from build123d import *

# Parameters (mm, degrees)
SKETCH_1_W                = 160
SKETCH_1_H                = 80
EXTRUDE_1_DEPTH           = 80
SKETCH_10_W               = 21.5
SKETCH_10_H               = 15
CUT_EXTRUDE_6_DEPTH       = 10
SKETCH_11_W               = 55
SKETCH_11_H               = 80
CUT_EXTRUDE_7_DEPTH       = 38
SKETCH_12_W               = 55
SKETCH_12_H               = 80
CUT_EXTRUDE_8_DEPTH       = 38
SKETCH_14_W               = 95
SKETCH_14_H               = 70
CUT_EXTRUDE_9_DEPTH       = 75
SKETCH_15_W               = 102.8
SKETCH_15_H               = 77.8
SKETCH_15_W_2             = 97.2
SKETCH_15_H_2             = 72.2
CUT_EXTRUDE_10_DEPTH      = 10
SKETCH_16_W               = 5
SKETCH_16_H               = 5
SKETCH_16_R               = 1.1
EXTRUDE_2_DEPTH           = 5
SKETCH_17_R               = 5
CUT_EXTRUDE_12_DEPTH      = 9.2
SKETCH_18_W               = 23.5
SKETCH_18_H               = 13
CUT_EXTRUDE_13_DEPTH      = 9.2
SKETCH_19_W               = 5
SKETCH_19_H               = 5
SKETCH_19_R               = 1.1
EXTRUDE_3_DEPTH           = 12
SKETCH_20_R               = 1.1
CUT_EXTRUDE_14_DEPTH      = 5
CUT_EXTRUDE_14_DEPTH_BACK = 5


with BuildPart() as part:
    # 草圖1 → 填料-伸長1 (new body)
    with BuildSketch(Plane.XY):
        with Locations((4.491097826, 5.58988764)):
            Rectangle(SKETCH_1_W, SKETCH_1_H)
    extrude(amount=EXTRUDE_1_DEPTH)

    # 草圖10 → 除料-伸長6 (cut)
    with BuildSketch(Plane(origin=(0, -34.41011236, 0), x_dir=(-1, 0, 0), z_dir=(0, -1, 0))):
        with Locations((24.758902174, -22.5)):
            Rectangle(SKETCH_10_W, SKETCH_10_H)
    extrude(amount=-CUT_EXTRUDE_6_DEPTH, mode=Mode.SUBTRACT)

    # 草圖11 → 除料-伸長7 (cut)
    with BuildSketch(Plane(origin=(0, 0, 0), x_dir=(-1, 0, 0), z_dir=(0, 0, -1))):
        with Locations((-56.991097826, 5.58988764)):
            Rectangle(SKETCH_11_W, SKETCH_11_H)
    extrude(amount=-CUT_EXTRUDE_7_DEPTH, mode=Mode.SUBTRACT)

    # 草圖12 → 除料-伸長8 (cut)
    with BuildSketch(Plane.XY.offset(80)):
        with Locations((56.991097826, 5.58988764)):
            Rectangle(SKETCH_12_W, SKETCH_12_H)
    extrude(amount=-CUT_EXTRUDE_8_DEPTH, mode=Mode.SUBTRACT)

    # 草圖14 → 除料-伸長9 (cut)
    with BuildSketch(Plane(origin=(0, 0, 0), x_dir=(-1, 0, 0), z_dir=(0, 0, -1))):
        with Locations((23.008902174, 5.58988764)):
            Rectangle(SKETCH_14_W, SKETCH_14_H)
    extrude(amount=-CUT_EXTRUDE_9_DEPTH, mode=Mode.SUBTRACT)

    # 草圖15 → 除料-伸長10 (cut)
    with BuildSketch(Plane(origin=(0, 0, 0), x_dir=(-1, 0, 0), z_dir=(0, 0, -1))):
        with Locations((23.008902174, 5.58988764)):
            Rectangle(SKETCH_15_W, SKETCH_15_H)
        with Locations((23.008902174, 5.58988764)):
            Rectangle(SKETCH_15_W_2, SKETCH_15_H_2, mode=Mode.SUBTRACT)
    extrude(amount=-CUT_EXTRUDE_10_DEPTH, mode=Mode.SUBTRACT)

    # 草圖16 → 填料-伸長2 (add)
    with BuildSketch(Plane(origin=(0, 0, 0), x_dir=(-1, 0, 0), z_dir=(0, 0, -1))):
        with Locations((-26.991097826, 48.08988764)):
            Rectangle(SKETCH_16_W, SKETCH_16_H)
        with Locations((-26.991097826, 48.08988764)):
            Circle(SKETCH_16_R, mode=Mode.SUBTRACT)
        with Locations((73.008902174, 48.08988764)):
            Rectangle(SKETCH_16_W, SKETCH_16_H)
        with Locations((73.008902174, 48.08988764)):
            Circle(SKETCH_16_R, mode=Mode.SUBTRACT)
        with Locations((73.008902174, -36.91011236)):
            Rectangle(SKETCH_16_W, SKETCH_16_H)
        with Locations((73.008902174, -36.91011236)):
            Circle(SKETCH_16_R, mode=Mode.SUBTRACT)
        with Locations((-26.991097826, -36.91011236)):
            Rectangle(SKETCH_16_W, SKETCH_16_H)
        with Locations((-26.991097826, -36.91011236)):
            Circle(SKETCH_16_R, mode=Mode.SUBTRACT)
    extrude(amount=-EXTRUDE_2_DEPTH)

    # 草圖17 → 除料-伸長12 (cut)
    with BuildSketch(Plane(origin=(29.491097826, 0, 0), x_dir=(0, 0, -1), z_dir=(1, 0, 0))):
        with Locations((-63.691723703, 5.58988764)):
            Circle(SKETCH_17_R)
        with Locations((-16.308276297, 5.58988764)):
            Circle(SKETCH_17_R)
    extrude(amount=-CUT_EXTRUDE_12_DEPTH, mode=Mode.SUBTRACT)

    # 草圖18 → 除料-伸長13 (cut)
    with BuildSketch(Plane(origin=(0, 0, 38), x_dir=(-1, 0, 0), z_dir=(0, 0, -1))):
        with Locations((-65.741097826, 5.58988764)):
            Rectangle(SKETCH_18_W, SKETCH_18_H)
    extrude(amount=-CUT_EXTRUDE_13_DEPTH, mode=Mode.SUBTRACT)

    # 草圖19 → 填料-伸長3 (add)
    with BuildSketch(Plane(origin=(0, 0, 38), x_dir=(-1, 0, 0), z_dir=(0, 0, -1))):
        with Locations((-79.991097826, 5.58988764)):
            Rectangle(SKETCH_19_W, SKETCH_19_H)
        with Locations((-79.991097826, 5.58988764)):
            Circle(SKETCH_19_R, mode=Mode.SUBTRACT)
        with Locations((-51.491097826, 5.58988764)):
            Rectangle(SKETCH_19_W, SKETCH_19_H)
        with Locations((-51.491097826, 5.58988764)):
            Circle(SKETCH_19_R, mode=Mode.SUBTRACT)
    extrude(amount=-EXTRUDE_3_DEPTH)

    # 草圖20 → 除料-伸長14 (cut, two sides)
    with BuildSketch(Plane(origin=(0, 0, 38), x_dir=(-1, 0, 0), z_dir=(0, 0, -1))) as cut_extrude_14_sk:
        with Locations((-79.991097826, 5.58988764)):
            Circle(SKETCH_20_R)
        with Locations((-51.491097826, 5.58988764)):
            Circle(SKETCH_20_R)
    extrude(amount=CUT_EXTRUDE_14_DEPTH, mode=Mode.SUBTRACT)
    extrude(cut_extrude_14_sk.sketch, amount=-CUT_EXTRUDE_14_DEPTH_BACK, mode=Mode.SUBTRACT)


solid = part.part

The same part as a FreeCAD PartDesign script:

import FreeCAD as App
import Part
import Sketcher

V = App.Vector


def add_polygon(sketch, points):
    """Adds a closed chain of lines whose ends are joined by coincident constraints."""
    first, n = sketch.GeometryCount, len(points)
    for a, b in zip(points, points[1:] + points[:1]):
        sketch.addGeometry(Part.LineSegment(App.Vector(*a, 0), App.Vector(*b, 0)), False)
    for i in range(n):
        sketch.addConstraint(Sketcher.Constraint("Coincident", first + i, 2, first + (i + 1) % n, 1))

doc = App.newDocument("Part")
body = doc.addObject("PartDesign::Body", "Body")

sketch1 = doc.addObject("Sketcher::SketchObject", "Sketch")
body.addObject(sketch1)
sketch1.AttachmentSupport = (doc.XY_Plane, [""])
sketch1.MapMode = "FlatFace"
add_polygon(sketch1, [(-76, 46), (-76, -34), (84, -34), (84, 46)])
sketch1.addConstraint([
    Sketcher.Constraint("Vertical", 0),
    Sketcher.Constraint("Horizontal", 1),
    Sketcher.Constraint("Vertical", 2),
    Sketcher.Constraint("Horizontal", 3),
    Sketcher.Constraint("DistanceX", 1, 1, 1, 2, 160.0),
    Sketcher.Constraint("DistanceY", 0, 2, 0, 1, 80.0),
    Sketcher.Constraint("DistanceX", 0, 2, -1, 1, 75.508902),
    Sketcher.Constraint("DistanceY", 0, 2, -1, 1, 34.410112),
])
pad1 = doc.addObject("PartDesign::Pad", "Pad")
body.addObject(pad1)
pad1.Profile = sketch1
pad1.Length = 80

sketch2 = doc.addObject("Sketcher::SketchObject", "Sketch001")
body.addObject(sketch2)
sketch2.AttachmentSupport = (doc.XZ_Plane, [""])
sketch2.MapMode = "FlatFace"
sketch2.AttachmentOffset = App.Placement(V(0, 0, 34.410112), App.Rotation())
add_polygon(sketch2, [(-14, 15), (-14, 30), (-36, 30), (-36, 15)])
sketch2.addConstraint([
    Sketcher.Constraint("Vertical", 0),
    Sketcher.Constraint("Horizontal", 1),
    Sketcher.Constraint("Vertical", 2),
    Sketcher.Constraint("Horizontal", 3),
    Sketcher.Constraint("DistanceY", 0, 1, 0, 2, 15.0),
    Sketcher.Constraint("DistanceX", 1, 2, 1, 1, 21.5),
    Sketcher.Constraint("DistanceY", -1, 1, 0, 2, 30.0),
    Sketcher.Constraint("DistanceX", 0, 2, -1, 1, 14.008902),
])
pocket1 = doc.addObject("PartDesign::Pocket", "Pocket")
body.addObject(pocket1)
pocket1.Profile = sketch2
pocket1.Length = 10

sketch3 = doc.addObject("Sketcher::SketchObject", "Sketch002")
body.addObject(sketch3)
sketch3.AttachmentSupport = (doc.XY_Plane, [""])
sketch3.MapMode = "FlatFace"
add_polygon(sketch3, [(84, 46), (84, -34), (29, -34), (29, 46)])
sketch3.addConstraint([
    Sketcher.Constraint("Vertical", 0),
    Sketcher.Constraint("Horizontal", 1),
    Sketcher.Constraint("Vertical", 2),
    Sketcher.Constraint("Horizontal", 3),
    Sketcher.Constraint("DistanceX", 1, 2, 1, 1, 55.0),
    Sketcher.Constraint("DistanceY", 0, 2, 0, 1, 80.0),
    Sketcher.Constraint("DistanceX", -1, 1, 0, 2, 84.491098),
    Sketcher.Constraint("DistanceY", 0, 2, -1, 1, 34.410112),
])
pocket2 = doc.addObject("PartDesign::Pocket", "Pocket001")
body.addObject(pocket2)
pocket2.Profile = sketch3
pocket2.Length = 38
pocket2.Reversed = True

sketch4 = doc.addObject("Sketcher::SketchObject", "Sketch003")
body.addObject(sketch4)
sketch4.AttachmentSupport = (doc.XY_Plane, [""])
sketch4.MapMode = "FlatFace"
sketch4.AttachmentOffset = App.Placement(V(0, 0, 80), App.Rotation())
add_polygon(sketch4, [(29, 46), (29, -34), (84, -34), (84, 46)])
sketch4.addConstraint([
    Sketcher.Constraint("Vertical", 0),
    Sketcher.Constraint("Horizontal", 1),
    Sketcher.Constraint("Vertical", 2),
    Sketcher.Constraint("Horizontal", 3),
    Sketcher.Constraint("DistanceX", 1, 1, 1, 2, 55.0),
    Sketcher.Constraint("DistanceY", 0, 2, 0, 1, 80.0),
    Sketcher.Constraint("DistanceX", -1, 1, 0, 2, 29.491098),
    Sketcher.Constraint("DistanceY", 0, 2, -1, 1, 34.410112),
])
pocket3 = doc.addObject("PartDesign::Pocket", "Pocket002")
body.addObject(pocket3)
pocket3.Profile = sketch4
pocket3.Length = 38

sketch5 = doc.addObject("Sketcher::SketchObject", "Sketch004")
body.addObject(sketch5)
sketch5.AttachmentSupport = (doc.XY_Plane, [""])
sketch5.MapMode = "FlatFace"
add_polygon(sketch5, [(24, 41), (24, -29), (-71, -29), (-71, 41)])
sketch5.addConstraint([
    Sketcher.Constraint("Vertical", 0),
    Sketcher.Constraint("Horizontal", 1),
    Sketcher.Constraint("Vertical", 2),
    Sketcher.Constraint("Horizontal", 3),
    Sketcher.Constraint("DistanceX", 1, 2, 1, 1, 95.0),
    Sketcher.Constraint("DistanceY", 0, 2, 0, 1, 70.0),
    Sketcher.Constraint("DistanceX", -1, 1, 0, 2, 24.491098),
    Sketcher.Constraint("DistanceY", 0, 2, -1, 1, 29.410112),
])
pocket4 = doc.addObject("PartDesign::Pocket", "Pocket003")
body.addObject(pocket4)
pocket4.Profile = sketch5
pocket4.Length = 75
pocket4.Reversed = True

sketch6 = doc.addObject("Sketcher::SketchObject", "Sketch005")
body.addObject(sketch6)
sketch6.AttachmentSupport = (doc.XY_Plane, [""])
sketch6.MapMode = "FlatFace"
add_polygon(sketch6, [(28, 44), (28, -33), (-74, -33), (-74, 44)])
add_polygon(sketch6, [(-72, -31), (26, -31), (26, 42), (-72, 42)])
sketch6.addConstraint([
    Sketcher.Constraint("Vertical", 0),
    Sketcher.Constraint("Horizontal", 1),
    Sketcher.Constraint("Vertical", 2),
    Sketcher.Constraint("Horizontal", 3),
    Sketcher.Constraint("Horizontal", 4),
    Sketcher.Constraint("Vertical", 5),
    Sketcher.Constraint("Horizontal", 6),
    Sketcher.Constraint("Vertical", 7),
    Sketcher.Constraint("DistanceX", 1, 2, 1, 1, 102.8),
    Sketcher.Constraint("DistanceX", 4, 1, 4, 2, 97.2),
    Sketcher.Constraint("DistanceY", 0, 2, 0, 1, 77.8),
    Sketcher.Constraint("DistanceY", 5, 1, 5, 2, 72.2),
    Sketcher.Constraint("DistanceY", 4, 2, 3, 2, 75.0),
    Sketcher.Constraint("DistanceX", 1, 2, 4, 2, 100.0),
    Sketcher.Constraint("DistanceX", -1, 1, 0, 2, 28.391098),
    Sketcher.Constraint("DistanceY", 0, 2, -1, 1, 33.310112),
])
pocket5 = doc.addObject("PartDesign::Pocket", "Pocket004")
body.addObject(pocket5)
pocket5.Profile = sketch6
pocket5.Length = 10
pocket5.Reversed = True

sketch7 = doc.addObject("Sketcher::SketchObject", "Sketch006")
body.addObject(sketch7)
sketch7.AttachmentSupport = (doc.XY_Plane, [""])
sketch7.MapMode = "FlatFace"
add_polygon(sketch7, [(29.5, 50.6), (29.5, 45.6), (24.5, 45.6), (24.5, 50.6)])
sketch7.addGeometry(Part.Circle(V(27, 48.1, 0), V(0, 0, 1), 1.1), False)
add_polygon(sketch7, [(-70.5, 50.6), (-70.5, 45.6), (-75.5, 45.6), (-75.5, 50.6)])
sketch7.addGeometry(Part.Circle(V(-73, 48.1, 0), V(0, 0, 1), 1.1), False)
add_polygon(sketch7, [(-70.5, -34.4), (-70.5, -39.4), (-75.5, -39.4), (-75.5, -34.4)])
sketch7.addGeometry(Part.Circle(V(-73, -36.9, 0), V(0, 0, 1), 1.1), False)
add_polygon(sketch7, [(29.5, -34.4), (29.5, -39.4), (24.5, -39.4), (24.5, -34.4)])
sketch7.addGeometry(Part.Circle(V(27, -36.9, 0), V(0, 0, 1), 1.1), False)
sketch7.addConstraint([
    Sketcher.Constraint("Vertical", 0),
    Sketcher.Constraint("Horizontal", 1),
    Sketcher.Constraint("Vertical", 2),
    Sketcher.Constraint("Horizontal", 3),
    Sketcher.Constraint("Vertical", 5),
    Sketcher.Constraint("Horizontal", 6),
    Sketcher.Constraint("Vertical", 7),
    Sketcher.Constraint("Horizontal", 8),
    Sketcher.Constraint("Vertical", 10),
    Sketcher.Constraint("Horizontal", 11),
    Sketcher.Constraint("Vertical", 12),
    Sketcher.Constraint("Horizontal", 13),
    Sketcher.Constraint("Vertical", 15),
    Sketcher.Constraint("Horizontal", 16),
    Sketcher.Constraint("Vertical", 17),
    Sketcher.Constraint("Horizontal", 18),
    Sketcher.Constraint("Equal", 4, 9),
    Sketcher.Constraint("Equal", 9, 14),
    Sketcher.Constraint("Equal", 14, 19),
    Sketcher.Constraint("Horizontal", 4, 3, 9, 3),
    Sketcher.Constraint("Horizontal", 14, 3, 19, 3),
    Sketcher.Constraint("Horizontal", 1, 2, 5, 2),
    Sketcher.Constraint("Horizontal", 3, 2, 7, 2),
    Sketcher.Constraint("Horizontal", 11, 2, 15, 2),
    Sketcher.Constraint("Horizontal", 13, 2, 17, 2),
    Sketcher.Constraint("Vertical", 9, 3, 14, 3),
    Sketcher.Constraint("Vertical", 4, 3, 19, 3),
    Sketcher.Constraint("Vertical", 8, 2, 10, 2),
    Sketcher.Constraint("Vertical", 7, 2, 11, 2),
    Sketcher.Constraint("Vertical", 3, 2, 15, 2),
    Sketcher.Constraint("Vertical", 2, 2, 16, 2),
    Sketcher.Constraint("Equal", 3, 6),
    Sketcher.Constraint("Equal", 18, 0),
    Sketcher.Constraint("Equal", 7, 10),
    Sketcher.Constraint("Diameter", 4, 2.2),
    Sketcher.Constraint("DistanceX", 1, 2, 1, 1, 5.0),
    Sketcher.Constraint("DistanceX", 9, 3, 4, 3, 100.0),
    Sketcher.Constraint("DistanceY", 14, 3, 9, 3, 85.0),
    Sketcher.Constraint("DistanceX", 5, 2, 1, 2, 95.0),
    Sketcher.Constraint("DistanceY", 10, 2, 5, 2, 85.0),
    Sketcher.Constraint("DistanceX", 4, 3, 0, 2, 2.5),
    Sketcher.Constraint("DistanceY", 0, 2, 4, 3, 2.5),
    Sketcher.Constraint("DistanceX", -1, 1, 4, 3, 26.991098),
    Sketcher.Constraint("DistanceY", -1, 1, 4, 3, 48.089888),
])
pad2 = doc.addObject("PartDesign::Pad", "Pad001")
body.addObject(pad2)
pad2.Profile = sketch7
pad2.Length = 5

sketch8 = doc.addObject("Sketcher::SketchObject", "Sketch007")
body.addObject(sketch8)
sketch8.AttachmentSupport = (doc.YZ_Plane, [""])
sketch8.MapMode = "FlatFace"
sketch8.AttachmentOffset = App.Placement(V(0, 0, 29.491098), App.Rotation())
sketch8.addGeometry([
    Part.Circle(V(6, 64, 0), V(0, 0, 1), 5),
    Part.Circle(V(6, 16, 0), V(0, 0, 1), 5),
], False)
sketch8.addConstraint([
    Sketcher.Constraint("Equal", 0, 1),
    Sketcher.Constraint("Vertical", 0, 3, 1, 3),
    Sketcher.Constraint("Diameter", 0, 10.0),
    Sketcher.Constraint("DistanceX", -1, 1, 0, 3, 5.589888),
    Sketcher.Constraint("DistanceY", -1, 1, 0, 3, 63.691724),
    Sketcher.Constraint("DistanceY", -1, 1, 1, 3, 16.308276),
])
pocket6 = doc.addObject("PartDesign::Pocket", "Pocket005")
body.addObject(pocket6)
pocket6.Profile = sketch8
pocket6.Length = 9.2

sketch9 = doc.addObject("Sketcher::SketchObject", "Sketch008")
body.addObject(sketch9)
sketch9.AttachmentSupport = (doc.XY_Plane, [""])
sketch9.MapMode = "FlatFace"
sketch9.AttachmentOffset = App.Placement(V(0, 0, 38), App.Rotation())
add_polygon(sketch9, [(77, 12), (77, -1), (54, -1), (54, 12)])
sketch9.addConstraint([
    Sketcher.Constraint("Vertical", 0),
    Sketcher.Constraint("Horizontal", 1),
    Sketcher.Constraint("Vertical", 2),
    Sketcher.Constraint("Horizontal", 3),
    Sketcher.Constraint("DistanceY", 0, 2, 0, 1, 13.0),
    Sketcher.Constraint("DistanceX", 1, 2, 1, 1, 23.5),
    Sketcher.Constraint("DistanceX", -1, 1, 0, 2, 77.491098),
    Sketcher.Constraint("DistanceY", 0, 2, -1, 1, 0.910112),
])
pocket7 = doc.addObject("PartDesign::Pocket", "Pocket006")
body.addObject(pocket7)
pocket7.Profile = sketch9
pocket7.Length = 9.2
pocket7.Reversed = True

sketch10 = doc.addObject("Sketcher::SketchObject", "Sketch009")
body.addObject(sketch10)
sketch10.AttachmentSupport = (doc.XY_Plane, [""])
sketch10.MapMode = "FlatFace"
sketch10.AttachmentOffset = App.Placement(V(0, 0, 38), App.Rotation())
add_polygon(sketch10, [(82.5, 8.1), (82.5, 3.1), (77.5, 3.1), (77.5, 8.1)])
sketch10.addGeometry(Part.Circle(V(80, 5.6, 0), V(0, 0, 1), 1.1), False)
add_polygon(sketch10, [(54, 8.1), (54, 3.1), (49, 3.1), (49, 8.1)])
sketch10.addGeometry(Part.Circle(V(51.5, 5.6, 0), V(0, 0, 1), 1.1), False)
sketch10.addConstraint([
    Sketcher.Constraint("Vertical", 0),
    Sketcher.Constraint("Horizontal", 1),
    Sketcher.Constraint("Vertical", 2),
    Sketcher.Constraint("Horizontal", 3),
    Sketcher.Constraint("Vertical", 5),
    Sketcher.Constraint("Horizontal", 6),
    Sketcher.Constraint("Vertical", 7),
    Sketcher.Constraint("Horizontal", 8),
    Sketcher.Constraint("Equal", 4, 9),
    Sketcher.Constraint("Horizontal", 4, 3, 9, 3),
    Sketcher.Constraint("Horizontal", 1, 2, 5, 2),
    Sketcher.Constraint("Horizontal", 3, 2, 7, 2),
    Sketcher.Constraint("Equal", 3, 6),
    Sketcher.Constraint("Equal", 8, 0),
    Sketcher.Constraint("Diameter", 4, 2.2),
    Sketcher.Constraint("DistanceX", 1, 2, 1, 1, 5.0),
    Sketcher.Constraint("DistanceX", 9, 3, 0, 2, 31.0),
    Sketcher.Constraint("DistanceX", 5, 2, 4, 3, 26.0),
    Sketcher.Constraint("DistanceX", 9, 3, 4, 3, 28.5),
    Sketcher.Constraint("DistanceY", 0, 2, 4, 3, 2.5),
    Sketcher.Constraint("DistanceX", -1, 1, 4, 3, 79.991098),
    Sketcher.Constraint("DistanceY", -1, 1, 4, 3, 5.589888),
])
pad3 = doc.addObject("PartDesign::Pad", "Pad002")
body.addObject(pad3)
pad3.Profile = sketch10
pad3.Length = 12

sketch11 = doc.addObject("Sketcher::SketchObject", "Sketch010")
body.addObject(sketch11)
sketch11.AttachmentSupport = (doc.XY_Plane, [""])
sketch11.MapMode = "FlatFace"
sketch11.AttachmentOffset = App.Placement(V(0, 0, 38), App.Rotation())
sketch11.addGeometry([
    Part.Circle(V(80, 5.6, 0), V(0, 0, 1), 1.1),
    Part.Circle(V(51.5, 5.6, 0), V(0, 0, 1), 1.1),
], False)
sketch11.addConstraint([
    Sketcher.Constraint("Equal", 0, 1),
    Sketcher.Constraint("Horizontal", 0, 3, 1, 3),
    Sketcher.Constraint("Diameter", 0, 2.2),
    Sketcher.Constraint("DistanceX", 1, 3, 0, 3, 28.5),
    Sketcher.Constraint("DistanceX", -1, 1, 0, 3, 79.991098),
    Sketcher.Constraint("DistanceY", -1, 1, 0, 3, 5.589888),
])
pocket8 = doc.addObject("PartDesign::Pocket", "Pocket007")
body.addObject(pocket8)
pocket8.Profile = sketch11
pocket8.Type = "ThroughAll"
pocket8.Midplane = True

doc.recompute()
